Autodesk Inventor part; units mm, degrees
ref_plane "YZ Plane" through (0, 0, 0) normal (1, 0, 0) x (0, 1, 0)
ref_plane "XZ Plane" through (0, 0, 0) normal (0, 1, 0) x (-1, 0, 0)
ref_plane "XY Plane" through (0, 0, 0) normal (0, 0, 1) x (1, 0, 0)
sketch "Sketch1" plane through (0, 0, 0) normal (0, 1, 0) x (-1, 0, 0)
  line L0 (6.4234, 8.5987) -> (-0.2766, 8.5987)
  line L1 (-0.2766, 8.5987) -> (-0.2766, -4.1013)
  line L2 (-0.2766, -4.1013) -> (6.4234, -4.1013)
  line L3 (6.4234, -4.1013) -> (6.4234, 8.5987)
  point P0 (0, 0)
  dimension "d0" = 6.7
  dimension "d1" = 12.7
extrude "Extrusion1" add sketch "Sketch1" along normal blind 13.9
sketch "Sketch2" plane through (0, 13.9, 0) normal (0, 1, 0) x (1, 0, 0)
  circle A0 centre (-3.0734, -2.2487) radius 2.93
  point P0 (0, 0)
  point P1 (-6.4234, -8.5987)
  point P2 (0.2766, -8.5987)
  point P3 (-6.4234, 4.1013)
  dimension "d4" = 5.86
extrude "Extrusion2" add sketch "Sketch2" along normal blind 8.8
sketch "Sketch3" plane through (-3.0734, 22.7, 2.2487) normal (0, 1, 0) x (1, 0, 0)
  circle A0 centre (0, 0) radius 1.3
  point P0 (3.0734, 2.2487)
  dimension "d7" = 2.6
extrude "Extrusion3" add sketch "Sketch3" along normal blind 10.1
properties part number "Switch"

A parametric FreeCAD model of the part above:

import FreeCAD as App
import Part
import Sketcher

V = App.Vector


def add_polygon(sketch, points):
    """Adds a closed chain of lines whose ends are joined by coincident constraints."""
    first, n = sketch.GeometryCount, len(points)
    for a, b in zip(points, points[1:] + points[:1]):
        sketch.addGeometry(Part.LineSegment(App.Vector(*a, 0), App.Vector(*b, 0)), False)
    for i in range(n):
        sketch.addConstraint(Sketcher.Constraint("Coincident", first + i, 2, first + (i + 1) % n, 1))

doc = App.newDocument("Part")
params = doc.addObject("Spreadsheet::Sheet", "Params")
for row, (alias, value) in enumerate([
    ("sketch1_width", "6.7 mm"),
    ("sketch1_height", "12.7 mm"),
    ("pad1_length", "13.9 mm"),
    ("sketch2_diameter", "5.86 mm"),
    ("pad2_length", "8.8 mm"),
    ("sketch3_diameter", "2.6 mm"),
    ("pad3_length", "10.1 mm"),
], start=1):
    params.set(f"A{row}", alias)
    params.set(f"B{row}", "=" + value)
    params.setAlias(f"B{row}", alias)

body = doc.addObject("PartDesign::Body", "Body")

# Sketch on XZ plane
sketch1 = doc.addObject("Sketcher::SketchObject", "Sketch")
body.addObject(sketch1)
sketch1.AttachmentSupport = (doc.XZ_Plane, [""])
sketch1.MapMode = "FlatFace"
add_polygon(sketch1, [(-6.4234, -4.1013), (-6.4234, 8.5987), (0.2766, 8.5987), (0.2766, -4.1013)])  # lines 0-3
sketch1.addConstraint([
    Sketcher.Constraint("Vertical", 0),
    Sketcher.Constraint("Horizontal", 1),
    Sketcher.Constraint("Vertical", 2),
    Sketcher.Constraint("Horizontal", 3),
    Sketcher.Constraint("DistanceX", 1, 1, 1, 2, 6.7),
    Sketcher.Constraint("DistanceY", 0, 1, 0, 2, 12.7),
    Sketcher.Constraint("DistanceX", 0, 2, -1, 1, 6.4234),
    Sketcher.Constraint("DistanceY", -1, 1, 0, 2, 8.5987),
])
sketch1.setExpression("Constraints[8]", "Params.sketch1_width")
sketch1.setExpression("Constraints[9]", "Params.sketch1_height")
pad1 = doc.addObject("PartDesign::Pad", "Pad")
body.addObject(pad1)
pad1.Profile = sketch1
pad1.setExpression("Length", "Params.pad1_length")
pad1.Reversed = True

# Sketch on XZ plane
sketch2 = doc.addObject("Sketcher::SketchObject", "Sketch001")
body.addObject(sketch2)
sketch2.AttachmentSupport = (doc.XZ_Plane, [""])
sketch2.MapMode = "FlatFace"
sketch2.AttachmentOffset = App.Placement(V(0, 0, -13.9), App.Rotation())
sketch2.addGeometry(Part.Circle(V(-3.0734, 2.2487, 0), V(0, 0, 1), 2.93), False)
sketch2.addConstraint([
    Sketcher.Constraint("Diameter", 0, 5.86),
    Sketcher.Constraint("DistanceX", 0, 3, -1, 1, 3.0734),
    Sketcher.Constraint("DistanceY", -1, 1, 0, 3, 2.2487),
])
sketch2.setExpression("Constraints[0]", "Params.sketch2_diameter")
pad2 = doc.addObject("PartDesign::Pad", "Pad001")
body.addObject(pad2)
pad2.Profile = sketch2
pad2.setExpression("Length", "Params.pad2_length")
pad2.Reversed = True

# Sketch on XZ plane
sketch3 = doc.addObject("Sketcher::SketchObject", "Sketch002")
body.addObject(sketch3)
sketch3.AttachmentSupport = (doc.XZ_Plane, [""])
sketch3.MapMode = "FlatFace"
sketch3.AttachmentOffset = App.Placement(V(0, 0, -22.7), App.Rotation())
sketch3.addGeometry(Part.Circle(V(-3.0734, 2.2487, 0), V(0, 0, 1), 1.3), False)
sketch3.addConstraint([
    Sketcher.Constraint("Diameter", 0, 2.6),
    Sketcher.Constraint("DistanceX", 0, 3, -1, 1, 3.0734),
    Sketcher.Constraint("DistanceY", -1, 1, 0, 3, 2.2487),
])
sketch3.setExpression("Constraints[0]", "Params.sketch3_diameter")
pad3 = doc.addObject("PartDesign::Pad", "Pad002")
body.addObject(pad3)
pad3.Profile = sketch3
pad3.setExpression("Length", "Params.pad3_length")
pad3.Reversed = True

doc.recompute()
